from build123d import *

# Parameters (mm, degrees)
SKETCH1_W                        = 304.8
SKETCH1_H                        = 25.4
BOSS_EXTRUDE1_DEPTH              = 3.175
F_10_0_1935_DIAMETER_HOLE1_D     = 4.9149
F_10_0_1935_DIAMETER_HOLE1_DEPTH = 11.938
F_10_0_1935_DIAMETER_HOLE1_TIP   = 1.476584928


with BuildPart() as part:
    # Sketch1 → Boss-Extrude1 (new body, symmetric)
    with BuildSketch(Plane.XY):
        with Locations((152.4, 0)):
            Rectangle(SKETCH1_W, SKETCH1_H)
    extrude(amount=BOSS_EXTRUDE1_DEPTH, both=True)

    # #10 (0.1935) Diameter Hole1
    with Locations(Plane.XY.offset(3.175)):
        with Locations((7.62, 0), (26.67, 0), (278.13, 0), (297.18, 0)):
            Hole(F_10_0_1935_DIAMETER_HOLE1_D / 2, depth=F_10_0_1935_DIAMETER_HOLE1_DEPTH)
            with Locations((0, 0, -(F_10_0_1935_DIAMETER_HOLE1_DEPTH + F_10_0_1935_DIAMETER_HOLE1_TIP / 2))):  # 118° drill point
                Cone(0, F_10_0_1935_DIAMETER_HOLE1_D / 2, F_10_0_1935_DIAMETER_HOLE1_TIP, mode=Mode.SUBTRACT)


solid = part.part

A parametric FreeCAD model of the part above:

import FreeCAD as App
import Part
import Sketcher

V = App.Vector
Q = App.Units.Quantity

doc = App.newDocument("Part")
body = doc.addObject("PartDesign::Body", "Body")

sketch1 = body.newObject("Sketcher::SketchObject", "Sketch")
sketch1.AttachmentSupport = (doc.getObject("XY_Plane"), [""])
sketch1.MapMode = "FlatFace"
sketch1.addGeometry([
    Part.LineSegment(V(0, 12.7, 0), V(0, -12.7, 0)),
    Part.LineSegment(V(0, -12.7, 0), V(304.8, -12.7, 0)),
    Part.LineSegment(V(304.8, -12.7, 0), V(304.8, 12.7, 0)),
    Part.LineSegment(V(304.8, 12.7, 0), V(0, 12.7, 0)),
], False)
sketch1.addConstraint([
    Sketcher.Constraint("Coincident", 0, 2, 1, 1),
    Sketcher.Constraint("Coincident", 1, 2, 2, 1),
    Sketcher.Constraint("Coincident", 2, 2, 3, 1),
    Sketcher.Constraint("Coincident", 3, 2, 0, 1),
    Sketcher.Constraint("Vertical", 0),
    Sketcher.Constraint("Horizontal", 1),
    Sketcher.Constraint("Vertical", 2),
    Sketcher.Constraint("Horizontal", 3),
    Sketcher.Constraint("Symmetric", 0, 2, 3, 2, -1, 1),
    Sketcher.Constraint("DistanceX", 1, 1, 1, 2, Q("12 in")),
    Sketcher.Constraint("DistanceY", 0, 2, 0, 1, Q("1 in")),
])
pad1 = body.newObject("PartDesign::Pad", "Pad")
pad1.Profile = sketch1
pad1.Length = Q("0.25 in")
pad1.Midplane = True

sketch2 = body.newObject("Sketcher::SketchObject", "Sketch001")
sketch2.AttachmentSupport = (doc.getObject("XY_Plane"), [""])
sketch2.MapMode = "FlatFace"
sketch2.AttachmentOffset = App.Placement(V(0, 0, 0.125 * 25.4), App.Rotation())
sketch2.addGeometry([
    Part.Circle(V(7.62, 0, 0), V(0, 0, 1), 2.45745),
    Part.Circle(V(26.67, 0, 0), V(0, 0, 1), 2.45745),
    Part.Circle(V(278.13, 0, 0), V(0, 0, 1), 2.45745),
    Part.Circle(V(297.18, 0, 0), V(0, 0, 1), 2.45745),
], False)
sketch2.addConstraint([
    Sketcher.Constraint("Equal", 0, 1),
    Sketcher.Constraint("Equal", 1, 2),
    Sketcher.Constraint("Equal", 2, 3),
    Sketcher.Constraint("PointOnObject", 0, 3, -1),
    Sketcher.Constraint("PointOnObject", 1, 3, -1),
    Sketcher.Constraint("PointOnObject", 2, 3, -1),
    Sketcher.Constraint("PointOnObject", 3, 3, -1),
    Sketcher.Constraint("Diameter", 0, Q("0.1935 in")),
    Sketcher.Constraint("DistanceX", -1, 1, 0, 3, Q("0.3 in")),
    Sketcher.Constraint("DistanceX", -1, 1, 3, 3, Q("11.7 in")),
    Sketcher.Constraint("DistanceX", 1, 3, 2, 3, Q("9.9 in")),
    Sketcher.Constraint("DistanceX", -1, 1, 1, 3, Q("1.05 in")),
])
doc.recompute()
hole = body.newObject("PartDesign::Hole", "Hole")
hole.Profile = sketch2
hole.ThreadType = "None"
hole.Diameter = Q("0.1935 in")
hole.DepthType = "Dimension"
hole.Depth = Q("0.47 in")
hole.DrillPoint = "Angled"
hole.DrillPointAngle = 118

doc.recompute()
